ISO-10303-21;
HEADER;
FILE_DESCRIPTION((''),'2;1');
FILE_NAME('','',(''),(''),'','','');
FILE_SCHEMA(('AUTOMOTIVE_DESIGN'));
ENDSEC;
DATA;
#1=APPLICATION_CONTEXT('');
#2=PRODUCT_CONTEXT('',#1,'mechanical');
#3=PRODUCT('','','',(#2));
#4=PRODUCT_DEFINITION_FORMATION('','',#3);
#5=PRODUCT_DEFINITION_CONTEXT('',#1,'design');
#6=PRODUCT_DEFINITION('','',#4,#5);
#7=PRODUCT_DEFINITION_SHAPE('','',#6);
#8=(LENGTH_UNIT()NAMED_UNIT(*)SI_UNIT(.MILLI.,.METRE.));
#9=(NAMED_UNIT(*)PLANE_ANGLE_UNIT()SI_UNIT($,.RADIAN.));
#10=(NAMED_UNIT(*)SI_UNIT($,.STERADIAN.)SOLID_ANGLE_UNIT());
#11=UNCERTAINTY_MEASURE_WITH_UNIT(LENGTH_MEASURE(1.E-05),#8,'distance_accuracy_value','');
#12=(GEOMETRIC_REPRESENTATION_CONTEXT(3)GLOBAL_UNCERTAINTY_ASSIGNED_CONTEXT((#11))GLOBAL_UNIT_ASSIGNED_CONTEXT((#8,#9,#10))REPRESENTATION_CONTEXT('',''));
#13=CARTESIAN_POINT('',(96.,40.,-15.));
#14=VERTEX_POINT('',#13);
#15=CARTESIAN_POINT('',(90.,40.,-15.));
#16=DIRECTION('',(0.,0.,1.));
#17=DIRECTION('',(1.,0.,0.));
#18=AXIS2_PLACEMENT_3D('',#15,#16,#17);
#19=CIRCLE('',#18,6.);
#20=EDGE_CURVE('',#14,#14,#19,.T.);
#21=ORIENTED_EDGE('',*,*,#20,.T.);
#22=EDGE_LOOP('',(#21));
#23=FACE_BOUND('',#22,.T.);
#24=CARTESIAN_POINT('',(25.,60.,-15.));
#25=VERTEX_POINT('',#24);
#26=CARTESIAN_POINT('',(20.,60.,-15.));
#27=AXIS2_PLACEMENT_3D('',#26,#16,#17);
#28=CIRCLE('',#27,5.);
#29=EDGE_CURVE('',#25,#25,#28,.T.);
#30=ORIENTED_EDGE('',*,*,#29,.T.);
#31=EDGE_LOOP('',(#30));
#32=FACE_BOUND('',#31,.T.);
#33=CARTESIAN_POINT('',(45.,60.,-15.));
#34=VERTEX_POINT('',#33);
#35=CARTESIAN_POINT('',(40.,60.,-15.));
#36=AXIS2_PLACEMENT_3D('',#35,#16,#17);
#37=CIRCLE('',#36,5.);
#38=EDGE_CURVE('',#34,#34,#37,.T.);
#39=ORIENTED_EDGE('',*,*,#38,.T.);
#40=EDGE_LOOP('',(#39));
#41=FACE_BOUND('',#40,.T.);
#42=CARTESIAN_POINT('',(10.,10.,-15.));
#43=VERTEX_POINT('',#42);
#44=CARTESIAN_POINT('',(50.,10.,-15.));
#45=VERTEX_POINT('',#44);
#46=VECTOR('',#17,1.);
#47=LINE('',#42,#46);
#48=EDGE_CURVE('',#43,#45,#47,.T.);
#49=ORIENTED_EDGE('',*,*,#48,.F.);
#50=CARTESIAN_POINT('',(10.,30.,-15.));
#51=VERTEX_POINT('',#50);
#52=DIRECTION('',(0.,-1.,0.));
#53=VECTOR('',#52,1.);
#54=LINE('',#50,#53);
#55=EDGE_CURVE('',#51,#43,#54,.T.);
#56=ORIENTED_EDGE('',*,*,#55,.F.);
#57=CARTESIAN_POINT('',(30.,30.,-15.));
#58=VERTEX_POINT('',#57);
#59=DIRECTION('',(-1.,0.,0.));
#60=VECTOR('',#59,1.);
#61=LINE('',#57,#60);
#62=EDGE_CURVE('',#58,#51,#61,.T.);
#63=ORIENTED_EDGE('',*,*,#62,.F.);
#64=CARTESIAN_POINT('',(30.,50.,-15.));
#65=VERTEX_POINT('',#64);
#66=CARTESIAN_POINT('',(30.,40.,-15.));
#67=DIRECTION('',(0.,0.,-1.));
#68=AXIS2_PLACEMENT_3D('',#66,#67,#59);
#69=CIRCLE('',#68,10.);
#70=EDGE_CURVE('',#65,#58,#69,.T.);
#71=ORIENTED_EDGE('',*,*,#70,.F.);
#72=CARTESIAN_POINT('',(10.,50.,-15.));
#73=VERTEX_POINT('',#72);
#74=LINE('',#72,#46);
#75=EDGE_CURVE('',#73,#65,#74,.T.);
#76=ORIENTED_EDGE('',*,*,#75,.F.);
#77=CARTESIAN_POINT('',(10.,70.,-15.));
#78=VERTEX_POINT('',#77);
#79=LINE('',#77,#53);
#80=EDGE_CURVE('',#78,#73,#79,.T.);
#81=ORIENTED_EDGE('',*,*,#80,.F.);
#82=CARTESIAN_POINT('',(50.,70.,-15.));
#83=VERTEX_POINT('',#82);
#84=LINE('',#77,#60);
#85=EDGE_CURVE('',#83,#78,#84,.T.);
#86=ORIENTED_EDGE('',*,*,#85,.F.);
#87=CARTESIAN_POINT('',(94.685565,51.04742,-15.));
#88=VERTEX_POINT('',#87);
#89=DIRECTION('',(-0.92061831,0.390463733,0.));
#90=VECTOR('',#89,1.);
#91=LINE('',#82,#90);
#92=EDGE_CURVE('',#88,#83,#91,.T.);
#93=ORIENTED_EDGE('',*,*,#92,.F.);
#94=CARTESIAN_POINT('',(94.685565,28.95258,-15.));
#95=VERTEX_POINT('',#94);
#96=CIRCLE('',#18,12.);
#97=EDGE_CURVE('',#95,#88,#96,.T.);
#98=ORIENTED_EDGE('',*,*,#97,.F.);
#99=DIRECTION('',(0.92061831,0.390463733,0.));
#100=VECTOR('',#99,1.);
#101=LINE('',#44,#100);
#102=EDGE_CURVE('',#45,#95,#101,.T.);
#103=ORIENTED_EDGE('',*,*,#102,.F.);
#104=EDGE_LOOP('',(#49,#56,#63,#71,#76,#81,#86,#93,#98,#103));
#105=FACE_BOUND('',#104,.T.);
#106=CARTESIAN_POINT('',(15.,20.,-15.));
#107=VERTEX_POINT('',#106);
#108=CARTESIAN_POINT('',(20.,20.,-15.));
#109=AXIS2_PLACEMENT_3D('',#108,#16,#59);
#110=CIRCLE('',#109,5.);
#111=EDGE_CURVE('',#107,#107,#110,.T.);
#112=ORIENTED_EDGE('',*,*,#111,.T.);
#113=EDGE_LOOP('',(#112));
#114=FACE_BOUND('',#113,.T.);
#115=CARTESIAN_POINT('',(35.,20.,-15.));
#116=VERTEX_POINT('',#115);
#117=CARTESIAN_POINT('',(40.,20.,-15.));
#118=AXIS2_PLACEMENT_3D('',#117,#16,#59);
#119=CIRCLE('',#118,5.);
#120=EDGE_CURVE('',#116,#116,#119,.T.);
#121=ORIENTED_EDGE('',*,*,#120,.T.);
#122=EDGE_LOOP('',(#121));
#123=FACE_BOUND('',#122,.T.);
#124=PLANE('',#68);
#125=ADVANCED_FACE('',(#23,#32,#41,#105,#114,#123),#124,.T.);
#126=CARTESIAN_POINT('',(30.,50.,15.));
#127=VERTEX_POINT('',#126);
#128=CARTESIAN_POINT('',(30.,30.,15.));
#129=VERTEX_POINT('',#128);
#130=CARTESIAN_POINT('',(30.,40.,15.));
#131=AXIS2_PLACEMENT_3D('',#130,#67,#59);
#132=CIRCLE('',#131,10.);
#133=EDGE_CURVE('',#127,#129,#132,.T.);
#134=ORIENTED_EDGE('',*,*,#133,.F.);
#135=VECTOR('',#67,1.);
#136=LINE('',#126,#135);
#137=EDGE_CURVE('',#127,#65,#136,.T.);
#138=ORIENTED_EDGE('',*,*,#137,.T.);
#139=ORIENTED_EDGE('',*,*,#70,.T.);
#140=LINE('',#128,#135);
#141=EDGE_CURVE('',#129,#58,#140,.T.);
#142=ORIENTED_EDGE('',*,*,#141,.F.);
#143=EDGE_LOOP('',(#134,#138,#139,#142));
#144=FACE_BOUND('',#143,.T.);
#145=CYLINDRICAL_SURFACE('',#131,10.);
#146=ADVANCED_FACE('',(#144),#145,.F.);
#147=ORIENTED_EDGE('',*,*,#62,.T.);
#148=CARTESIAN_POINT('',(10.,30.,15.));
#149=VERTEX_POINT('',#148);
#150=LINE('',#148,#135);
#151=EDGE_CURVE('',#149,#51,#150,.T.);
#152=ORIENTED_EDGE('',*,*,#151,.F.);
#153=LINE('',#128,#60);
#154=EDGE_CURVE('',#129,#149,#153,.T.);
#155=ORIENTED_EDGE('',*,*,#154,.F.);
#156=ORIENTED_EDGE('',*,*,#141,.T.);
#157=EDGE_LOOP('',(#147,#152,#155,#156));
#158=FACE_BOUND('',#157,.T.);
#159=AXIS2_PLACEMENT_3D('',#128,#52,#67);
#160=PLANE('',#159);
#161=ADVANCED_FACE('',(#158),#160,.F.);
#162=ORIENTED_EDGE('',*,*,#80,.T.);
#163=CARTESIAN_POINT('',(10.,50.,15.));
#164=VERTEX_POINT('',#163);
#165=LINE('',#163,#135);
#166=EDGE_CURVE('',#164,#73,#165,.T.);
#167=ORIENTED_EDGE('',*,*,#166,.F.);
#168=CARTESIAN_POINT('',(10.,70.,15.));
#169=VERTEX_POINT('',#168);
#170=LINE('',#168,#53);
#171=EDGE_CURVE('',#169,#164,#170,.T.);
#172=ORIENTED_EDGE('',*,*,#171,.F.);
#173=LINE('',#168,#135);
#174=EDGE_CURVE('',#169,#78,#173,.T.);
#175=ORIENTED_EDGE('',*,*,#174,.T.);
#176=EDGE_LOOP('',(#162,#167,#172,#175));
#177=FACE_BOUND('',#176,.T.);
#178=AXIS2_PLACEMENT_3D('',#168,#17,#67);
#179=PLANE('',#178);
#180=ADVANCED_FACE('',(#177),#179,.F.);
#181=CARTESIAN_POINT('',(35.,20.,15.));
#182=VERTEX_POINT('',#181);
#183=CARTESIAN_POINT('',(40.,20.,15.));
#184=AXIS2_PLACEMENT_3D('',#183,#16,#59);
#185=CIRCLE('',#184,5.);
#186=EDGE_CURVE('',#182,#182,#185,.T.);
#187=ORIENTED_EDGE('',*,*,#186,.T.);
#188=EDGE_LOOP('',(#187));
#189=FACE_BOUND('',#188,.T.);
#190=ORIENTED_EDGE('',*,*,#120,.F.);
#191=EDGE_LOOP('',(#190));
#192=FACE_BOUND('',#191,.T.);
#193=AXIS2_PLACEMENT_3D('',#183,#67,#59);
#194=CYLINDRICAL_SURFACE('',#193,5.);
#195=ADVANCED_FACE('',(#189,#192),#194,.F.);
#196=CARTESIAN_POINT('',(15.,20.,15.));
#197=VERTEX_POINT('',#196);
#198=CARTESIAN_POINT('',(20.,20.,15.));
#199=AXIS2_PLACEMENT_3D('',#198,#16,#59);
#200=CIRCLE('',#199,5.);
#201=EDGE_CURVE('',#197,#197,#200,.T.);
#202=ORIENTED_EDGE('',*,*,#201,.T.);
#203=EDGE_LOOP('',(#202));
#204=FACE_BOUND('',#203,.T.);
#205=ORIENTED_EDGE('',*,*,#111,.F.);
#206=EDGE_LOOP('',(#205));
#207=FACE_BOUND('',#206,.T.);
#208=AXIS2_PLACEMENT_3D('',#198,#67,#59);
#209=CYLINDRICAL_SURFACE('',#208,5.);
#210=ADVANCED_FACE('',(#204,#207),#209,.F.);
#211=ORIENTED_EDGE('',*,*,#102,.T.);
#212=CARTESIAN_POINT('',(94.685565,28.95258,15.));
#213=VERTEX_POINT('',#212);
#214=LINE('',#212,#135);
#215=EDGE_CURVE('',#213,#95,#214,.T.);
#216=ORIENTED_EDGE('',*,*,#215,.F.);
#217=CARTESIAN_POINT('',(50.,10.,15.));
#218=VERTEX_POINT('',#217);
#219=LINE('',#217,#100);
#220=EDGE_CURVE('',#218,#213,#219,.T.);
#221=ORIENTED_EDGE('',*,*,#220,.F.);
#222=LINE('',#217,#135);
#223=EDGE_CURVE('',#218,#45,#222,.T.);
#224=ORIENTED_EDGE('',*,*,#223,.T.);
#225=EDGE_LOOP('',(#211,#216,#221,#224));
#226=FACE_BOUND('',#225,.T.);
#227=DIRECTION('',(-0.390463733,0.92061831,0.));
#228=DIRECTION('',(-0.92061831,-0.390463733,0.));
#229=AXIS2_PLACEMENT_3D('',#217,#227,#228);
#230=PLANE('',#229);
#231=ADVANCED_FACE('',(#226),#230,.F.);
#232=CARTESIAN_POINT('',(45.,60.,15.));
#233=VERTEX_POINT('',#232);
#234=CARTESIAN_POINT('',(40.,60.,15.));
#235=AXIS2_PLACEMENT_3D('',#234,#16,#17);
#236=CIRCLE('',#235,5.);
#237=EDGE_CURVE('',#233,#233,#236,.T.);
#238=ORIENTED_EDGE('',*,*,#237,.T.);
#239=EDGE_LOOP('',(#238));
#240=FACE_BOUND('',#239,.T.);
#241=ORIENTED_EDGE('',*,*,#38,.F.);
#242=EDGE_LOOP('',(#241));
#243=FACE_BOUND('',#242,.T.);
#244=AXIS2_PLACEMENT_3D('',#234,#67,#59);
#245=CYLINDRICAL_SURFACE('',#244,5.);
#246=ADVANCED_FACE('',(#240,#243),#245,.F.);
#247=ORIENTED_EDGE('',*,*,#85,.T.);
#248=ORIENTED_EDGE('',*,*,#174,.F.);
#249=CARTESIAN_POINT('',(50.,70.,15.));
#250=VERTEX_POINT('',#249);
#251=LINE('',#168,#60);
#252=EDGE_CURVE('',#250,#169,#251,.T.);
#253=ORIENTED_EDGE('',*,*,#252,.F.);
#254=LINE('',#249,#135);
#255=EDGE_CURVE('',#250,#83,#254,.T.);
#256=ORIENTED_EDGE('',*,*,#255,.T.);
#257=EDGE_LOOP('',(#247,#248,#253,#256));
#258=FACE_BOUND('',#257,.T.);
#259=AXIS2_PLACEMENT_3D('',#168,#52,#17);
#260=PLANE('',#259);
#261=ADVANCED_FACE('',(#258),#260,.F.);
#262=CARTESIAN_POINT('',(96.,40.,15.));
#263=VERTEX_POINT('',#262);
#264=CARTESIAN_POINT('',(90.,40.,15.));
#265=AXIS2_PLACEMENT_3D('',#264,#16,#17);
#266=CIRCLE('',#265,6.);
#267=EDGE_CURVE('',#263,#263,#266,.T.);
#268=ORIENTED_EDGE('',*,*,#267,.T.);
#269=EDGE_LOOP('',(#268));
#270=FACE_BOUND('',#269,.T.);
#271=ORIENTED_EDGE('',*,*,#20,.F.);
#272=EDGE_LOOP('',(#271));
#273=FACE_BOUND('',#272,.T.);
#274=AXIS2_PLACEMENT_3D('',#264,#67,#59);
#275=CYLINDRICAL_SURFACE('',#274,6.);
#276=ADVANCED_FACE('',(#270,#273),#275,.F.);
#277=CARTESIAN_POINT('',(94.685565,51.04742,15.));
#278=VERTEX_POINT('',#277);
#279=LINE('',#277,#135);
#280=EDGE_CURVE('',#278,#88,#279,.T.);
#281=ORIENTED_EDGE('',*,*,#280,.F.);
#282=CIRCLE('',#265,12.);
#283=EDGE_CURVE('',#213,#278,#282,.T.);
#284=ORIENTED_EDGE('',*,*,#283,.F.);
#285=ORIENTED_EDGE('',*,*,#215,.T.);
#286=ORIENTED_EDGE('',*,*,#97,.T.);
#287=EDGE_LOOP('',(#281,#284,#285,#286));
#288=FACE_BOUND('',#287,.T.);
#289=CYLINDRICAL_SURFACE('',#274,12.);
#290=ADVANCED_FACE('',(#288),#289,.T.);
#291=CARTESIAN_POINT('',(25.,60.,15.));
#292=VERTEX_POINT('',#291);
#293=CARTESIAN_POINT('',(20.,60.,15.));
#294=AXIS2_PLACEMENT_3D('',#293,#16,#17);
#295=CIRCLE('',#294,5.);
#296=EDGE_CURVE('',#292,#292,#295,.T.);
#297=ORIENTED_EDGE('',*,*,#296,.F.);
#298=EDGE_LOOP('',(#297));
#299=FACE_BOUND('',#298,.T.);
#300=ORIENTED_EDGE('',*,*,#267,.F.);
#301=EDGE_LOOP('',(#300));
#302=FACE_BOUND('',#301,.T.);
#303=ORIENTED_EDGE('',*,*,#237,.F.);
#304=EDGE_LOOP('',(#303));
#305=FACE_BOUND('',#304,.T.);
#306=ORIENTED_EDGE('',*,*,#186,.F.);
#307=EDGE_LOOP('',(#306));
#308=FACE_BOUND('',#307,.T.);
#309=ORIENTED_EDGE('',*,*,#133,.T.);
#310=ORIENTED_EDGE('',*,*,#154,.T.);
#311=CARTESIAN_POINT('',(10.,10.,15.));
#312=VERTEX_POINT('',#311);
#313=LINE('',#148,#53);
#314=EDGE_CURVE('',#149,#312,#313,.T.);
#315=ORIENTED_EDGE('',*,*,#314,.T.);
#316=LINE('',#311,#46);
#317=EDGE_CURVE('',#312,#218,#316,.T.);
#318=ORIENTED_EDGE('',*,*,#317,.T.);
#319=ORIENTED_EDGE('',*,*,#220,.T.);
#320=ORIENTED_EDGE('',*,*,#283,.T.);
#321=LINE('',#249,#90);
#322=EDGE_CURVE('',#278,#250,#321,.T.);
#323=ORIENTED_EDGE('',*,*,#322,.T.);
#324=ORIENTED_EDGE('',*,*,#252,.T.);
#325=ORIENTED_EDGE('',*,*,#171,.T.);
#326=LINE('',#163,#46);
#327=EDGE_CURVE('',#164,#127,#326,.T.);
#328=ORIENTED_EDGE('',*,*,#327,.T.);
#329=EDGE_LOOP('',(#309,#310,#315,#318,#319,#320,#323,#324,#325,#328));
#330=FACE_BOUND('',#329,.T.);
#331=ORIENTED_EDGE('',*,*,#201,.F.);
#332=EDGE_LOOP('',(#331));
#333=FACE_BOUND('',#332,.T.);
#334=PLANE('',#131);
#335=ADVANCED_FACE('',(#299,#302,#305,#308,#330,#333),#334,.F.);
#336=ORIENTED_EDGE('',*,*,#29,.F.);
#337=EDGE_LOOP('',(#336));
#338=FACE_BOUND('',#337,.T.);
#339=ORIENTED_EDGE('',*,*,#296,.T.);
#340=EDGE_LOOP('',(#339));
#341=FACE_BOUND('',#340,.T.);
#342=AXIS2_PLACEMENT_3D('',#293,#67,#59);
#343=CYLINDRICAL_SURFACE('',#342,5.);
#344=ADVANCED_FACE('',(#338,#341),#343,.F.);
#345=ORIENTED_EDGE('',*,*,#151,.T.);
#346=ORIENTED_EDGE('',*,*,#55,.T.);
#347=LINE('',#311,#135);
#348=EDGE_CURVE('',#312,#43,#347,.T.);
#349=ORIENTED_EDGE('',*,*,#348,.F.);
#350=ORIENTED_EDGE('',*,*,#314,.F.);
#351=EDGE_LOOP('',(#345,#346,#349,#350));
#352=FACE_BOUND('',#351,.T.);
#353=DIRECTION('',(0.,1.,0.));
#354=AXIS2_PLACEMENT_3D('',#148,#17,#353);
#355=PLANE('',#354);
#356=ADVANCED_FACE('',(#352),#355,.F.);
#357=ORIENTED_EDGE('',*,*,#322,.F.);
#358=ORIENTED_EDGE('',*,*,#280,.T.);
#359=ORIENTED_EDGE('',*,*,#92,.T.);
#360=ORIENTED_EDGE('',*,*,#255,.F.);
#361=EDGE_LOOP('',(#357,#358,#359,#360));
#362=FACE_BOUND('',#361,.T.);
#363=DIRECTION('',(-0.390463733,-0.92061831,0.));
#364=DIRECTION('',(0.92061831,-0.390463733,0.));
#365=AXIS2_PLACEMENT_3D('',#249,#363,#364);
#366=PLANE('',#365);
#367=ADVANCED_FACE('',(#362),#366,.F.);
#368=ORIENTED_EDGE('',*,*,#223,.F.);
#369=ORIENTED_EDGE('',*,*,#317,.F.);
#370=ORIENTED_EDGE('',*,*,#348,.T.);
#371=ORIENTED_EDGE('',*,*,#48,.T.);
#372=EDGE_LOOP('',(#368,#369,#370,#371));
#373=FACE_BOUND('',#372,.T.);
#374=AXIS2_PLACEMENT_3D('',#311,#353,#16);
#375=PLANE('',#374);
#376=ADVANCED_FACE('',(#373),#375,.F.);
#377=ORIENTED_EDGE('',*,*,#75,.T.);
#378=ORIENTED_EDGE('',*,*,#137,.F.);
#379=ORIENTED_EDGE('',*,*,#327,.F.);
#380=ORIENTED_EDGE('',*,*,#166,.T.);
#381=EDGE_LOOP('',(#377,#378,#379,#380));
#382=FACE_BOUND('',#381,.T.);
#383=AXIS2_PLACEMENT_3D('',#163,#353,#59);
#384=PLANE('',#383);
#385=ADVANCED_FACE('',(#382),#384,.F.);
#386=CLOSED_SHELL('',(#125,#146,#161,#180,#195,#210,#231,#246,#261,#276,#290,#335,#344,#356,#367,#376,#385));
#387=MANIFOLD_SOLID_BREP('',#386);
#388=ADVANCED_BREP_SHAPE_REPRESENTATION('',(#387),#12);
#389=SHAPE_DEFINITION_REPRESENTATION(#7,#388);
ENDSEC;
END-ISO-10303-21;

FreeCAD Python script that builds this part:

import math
import FreeCAD as App
import Part
import Sketcher
Q = App.Units.Quantity

doc = App.newDocument("Part")
body = doc.addObject("PartDesign::Body", "Body")

# Sketch on XY plane
sketch1 = body.newObject("Sketcher::SketchObject", "Sketch")
sketch1.AttachmentSupport = (doc.getObject("XY_Plane"), [""])
sketch1.MapMode = "FlatFace"
sketch1.addGeometry(Part.LineSegment(App.Vector(10, 10, 0), App.Vector(50, 10, 0)), False)
sketch1.addGeometry(Part.LineSegment(App.Vector(50, 10, 0), App.Vector(95, 29, 0)), False)
sketch1.addGeometry(Part.ArcOfCircle(Part.Circle(App.Vector(90, 40, 0), App.Vector(0, 0, 1), 12), math.radians(-67), math.radians(67)), False)
sketch1.addGeometry(Part.LineSegment(App.Vector(95, 51, 0), App.Vector(50, 70, 0)), False)
sketch1.addGeometry(Part.LineSegment(App.Vector(50, 70, 0), App.Vector(10, 70, 0)), False)
sketch1.addGeometry(Part.LineSegment(App.Vector(10, 70, 0), App.Vector(10, 50, 0)), False)
sketch1.addGeometry(Part.LineSegment(App.Vector(10, 50, 0), App.Vector(30, 50, 0)), False)
sketch1.addGeometry(Part.ArcOfCircle(Part.Circle(App.Vector(30, 40, 0), App.Vector(0, 0, 1), 10), math.radians(-90), math.radians(90)), False)
sketch1.addGeometry(Part.LineSegment(App.Vector(30, 30, 0), App.Vector(10, 30, 0)), False)
sketch1.addGeometry(Part.LineSegment(App.Vector(10, 30, 0), App.Vector(10, 10, 0)), False)
sketch1.addGeometry(Part.Circle(App.Vector(20, 20, 0), App.Vector(0, 0, 1), 5), False)
sketch1.addGeometry(Part.Circle(App.Vector(40, 20, 0), App.Vector(0, 0, 1), 5), False)
sketch1.addGeometry(Part.Circle(App.Vector(20, 60, 0), App.Vector(0, 0, 1), 5), False)
sketch1.addGeometry(Part.Circle(App.Vector(40, 60, 0), App.Vector(0, 0, 1), 5), False)
sketch1.addGeometry(Part.Circle(App.Vector(90, 40, 0), App.Vector(0, 0, 1), 6), False)
sketch1.addConstraint(Sketcher.Constraint("Coincident", 0, 2, 1, 1))
sketch1.addConstraint(Sketcher.Constraint("Tangent", 1, 2, 2, 1))
sketch1.addConstraint(Sketcher.Constraint("Tangent", 2, 2, 3, 1))
sketch1.addConstraint(Sketcher.Constraint("Coincident", 3, 2, 4, 1))
sketch1.addConstraint(Sketcher.Constraint("Coincident", 4, 2, 5, 1))
sketch1.addConstraint(Sketcher.Constraint("Coincident", 5, 2, 6, 1))
sketch1.addConstraint(Sketcher.Constraint("Tangent", 6, 2, 7, 2))
sketch1.addConstraint(Sketcher.Constraint("Tangent", 7, 1, 8, 1))
sketch1.addConstraint(Sketcher.Constraint("Coincident", 8, 2, 9, 1))
sketch1.addConstraint(Sketcher.Constraint("Coincident", 9, 2, 0, 1))
sketch1.addConstraint(Sketcher.Constraint("Horizontal", 0))
sketch1.addConstraint(Sketcher.Constraint("Horizontal", 4))
sketch1.addConstraint(Sketcher.Constraint("Vertical", 5))
sketch1.addConstraint(Sketcher.Constraint("Horizontal", 6))
sketch1.addConstraint(Sketcher.Constraint("Horizontal", 8))
sketch1.addConstraint(Sketcher.Constraint("Vertical", 9))
sketch1.addConstraint(Sketcher.Constraint("Coincident", 14, 3, 2, 3))
sketch1.addConstraint(Sketcher.Constraint("Equal", 10, 11))
sketch1.addConstraint(Sketcher.Constraint("Equal", 11, 12))
sketch1.addConstraint(Sketcher.Constraint("Equal", 12, 13))
sketch1.addConstraint(Sketcher.Constraint("Horizontal", 2, 3, 7, 3))
sketch1.addConstraint(Sketcher.Constraint("Horizontal", 10, 3, 11, 3))
sketch1.addConstraint(Sketcher.Constraint("Horizontal", 12, 3, 13, 3))
sketch1.addConstraint(Sketcher.Constraint("Vertical", 10, 3, 12, 3))
sketch1.addConstraint(Sketcher.Constraint("Vertical", 11, 3, 13, 3))
sketch1.addConstraint(Sketcher.Constraint("Vertical", 1, 2, 2, 2))
sketch1.addConstraint(Sketcher.Constraint("Vertical", 0, 2, 3, 2))
sketch1.addConstraint(Sketcher.Constraint("Vertical", 5, 2, 8, 2))
sketch1.addConstraint(Sketcher.Constraint("Equal", 8, 5))
sketch1.addConstraint(Sketcher.Constraint("Diameter", 10, Q("10 mm")))
sketch1.addConstraint(Sketcher.Constraint("Diameter", 14, Q("12 mm")))
sketch1.addConstraint(Sketcher.Constraint("Radius", 2, Q("12 mm")))
sketch1.addConstraint(Sketcher.Constraint("Radius", 7, Q("10 mm")))
sketch1.addConstraint(Sketcher.Constraint("DistanceX", 0, 1, 0, 2, Q("40 mm")))
sketch1.addConstraint(Sketcher.Constraint("DistanceX", 6, 1, 6, 2, Q("20 mm")))
sketch1.addConstraint(Sketcher.Constraint("DistanceX", -1, 1, 2, 3, Q("90 mm")))
sketch1.addConstraint(Sketcher.Constraint("DistanceY", -1, 1, 2, 3, Q("40 mm")))
sketch1.addConstraint(Sketcher.Constraint("DistanceX", -1, 1, 7, 3, Q("30 mm")))
sketch1.addConstraint(Sketcher.Constraint("DistanceX", -1, 1, 10, 3, Q("20 mm")))
sketch1.addConstraint(Sketcher.Constraint("DistanceY", -1, 1, 10, 3, Q("20 mm")))
sketch1.addConstraint(Sketcher.Constraint("DistanceX", -1, 1, 11, 3, Q("40 mm")))
sketch1.addConstraint(Sketcher.Constraint("DistanceY", -1, 1, 12, 3, Q("60 mm")))
pad1 = body.newObject("PartDesign::Pad", "Pad")
pad1.Profile = sketch1
pad1.Length = 30
pad1.Midplane = True

doc.recompute()
